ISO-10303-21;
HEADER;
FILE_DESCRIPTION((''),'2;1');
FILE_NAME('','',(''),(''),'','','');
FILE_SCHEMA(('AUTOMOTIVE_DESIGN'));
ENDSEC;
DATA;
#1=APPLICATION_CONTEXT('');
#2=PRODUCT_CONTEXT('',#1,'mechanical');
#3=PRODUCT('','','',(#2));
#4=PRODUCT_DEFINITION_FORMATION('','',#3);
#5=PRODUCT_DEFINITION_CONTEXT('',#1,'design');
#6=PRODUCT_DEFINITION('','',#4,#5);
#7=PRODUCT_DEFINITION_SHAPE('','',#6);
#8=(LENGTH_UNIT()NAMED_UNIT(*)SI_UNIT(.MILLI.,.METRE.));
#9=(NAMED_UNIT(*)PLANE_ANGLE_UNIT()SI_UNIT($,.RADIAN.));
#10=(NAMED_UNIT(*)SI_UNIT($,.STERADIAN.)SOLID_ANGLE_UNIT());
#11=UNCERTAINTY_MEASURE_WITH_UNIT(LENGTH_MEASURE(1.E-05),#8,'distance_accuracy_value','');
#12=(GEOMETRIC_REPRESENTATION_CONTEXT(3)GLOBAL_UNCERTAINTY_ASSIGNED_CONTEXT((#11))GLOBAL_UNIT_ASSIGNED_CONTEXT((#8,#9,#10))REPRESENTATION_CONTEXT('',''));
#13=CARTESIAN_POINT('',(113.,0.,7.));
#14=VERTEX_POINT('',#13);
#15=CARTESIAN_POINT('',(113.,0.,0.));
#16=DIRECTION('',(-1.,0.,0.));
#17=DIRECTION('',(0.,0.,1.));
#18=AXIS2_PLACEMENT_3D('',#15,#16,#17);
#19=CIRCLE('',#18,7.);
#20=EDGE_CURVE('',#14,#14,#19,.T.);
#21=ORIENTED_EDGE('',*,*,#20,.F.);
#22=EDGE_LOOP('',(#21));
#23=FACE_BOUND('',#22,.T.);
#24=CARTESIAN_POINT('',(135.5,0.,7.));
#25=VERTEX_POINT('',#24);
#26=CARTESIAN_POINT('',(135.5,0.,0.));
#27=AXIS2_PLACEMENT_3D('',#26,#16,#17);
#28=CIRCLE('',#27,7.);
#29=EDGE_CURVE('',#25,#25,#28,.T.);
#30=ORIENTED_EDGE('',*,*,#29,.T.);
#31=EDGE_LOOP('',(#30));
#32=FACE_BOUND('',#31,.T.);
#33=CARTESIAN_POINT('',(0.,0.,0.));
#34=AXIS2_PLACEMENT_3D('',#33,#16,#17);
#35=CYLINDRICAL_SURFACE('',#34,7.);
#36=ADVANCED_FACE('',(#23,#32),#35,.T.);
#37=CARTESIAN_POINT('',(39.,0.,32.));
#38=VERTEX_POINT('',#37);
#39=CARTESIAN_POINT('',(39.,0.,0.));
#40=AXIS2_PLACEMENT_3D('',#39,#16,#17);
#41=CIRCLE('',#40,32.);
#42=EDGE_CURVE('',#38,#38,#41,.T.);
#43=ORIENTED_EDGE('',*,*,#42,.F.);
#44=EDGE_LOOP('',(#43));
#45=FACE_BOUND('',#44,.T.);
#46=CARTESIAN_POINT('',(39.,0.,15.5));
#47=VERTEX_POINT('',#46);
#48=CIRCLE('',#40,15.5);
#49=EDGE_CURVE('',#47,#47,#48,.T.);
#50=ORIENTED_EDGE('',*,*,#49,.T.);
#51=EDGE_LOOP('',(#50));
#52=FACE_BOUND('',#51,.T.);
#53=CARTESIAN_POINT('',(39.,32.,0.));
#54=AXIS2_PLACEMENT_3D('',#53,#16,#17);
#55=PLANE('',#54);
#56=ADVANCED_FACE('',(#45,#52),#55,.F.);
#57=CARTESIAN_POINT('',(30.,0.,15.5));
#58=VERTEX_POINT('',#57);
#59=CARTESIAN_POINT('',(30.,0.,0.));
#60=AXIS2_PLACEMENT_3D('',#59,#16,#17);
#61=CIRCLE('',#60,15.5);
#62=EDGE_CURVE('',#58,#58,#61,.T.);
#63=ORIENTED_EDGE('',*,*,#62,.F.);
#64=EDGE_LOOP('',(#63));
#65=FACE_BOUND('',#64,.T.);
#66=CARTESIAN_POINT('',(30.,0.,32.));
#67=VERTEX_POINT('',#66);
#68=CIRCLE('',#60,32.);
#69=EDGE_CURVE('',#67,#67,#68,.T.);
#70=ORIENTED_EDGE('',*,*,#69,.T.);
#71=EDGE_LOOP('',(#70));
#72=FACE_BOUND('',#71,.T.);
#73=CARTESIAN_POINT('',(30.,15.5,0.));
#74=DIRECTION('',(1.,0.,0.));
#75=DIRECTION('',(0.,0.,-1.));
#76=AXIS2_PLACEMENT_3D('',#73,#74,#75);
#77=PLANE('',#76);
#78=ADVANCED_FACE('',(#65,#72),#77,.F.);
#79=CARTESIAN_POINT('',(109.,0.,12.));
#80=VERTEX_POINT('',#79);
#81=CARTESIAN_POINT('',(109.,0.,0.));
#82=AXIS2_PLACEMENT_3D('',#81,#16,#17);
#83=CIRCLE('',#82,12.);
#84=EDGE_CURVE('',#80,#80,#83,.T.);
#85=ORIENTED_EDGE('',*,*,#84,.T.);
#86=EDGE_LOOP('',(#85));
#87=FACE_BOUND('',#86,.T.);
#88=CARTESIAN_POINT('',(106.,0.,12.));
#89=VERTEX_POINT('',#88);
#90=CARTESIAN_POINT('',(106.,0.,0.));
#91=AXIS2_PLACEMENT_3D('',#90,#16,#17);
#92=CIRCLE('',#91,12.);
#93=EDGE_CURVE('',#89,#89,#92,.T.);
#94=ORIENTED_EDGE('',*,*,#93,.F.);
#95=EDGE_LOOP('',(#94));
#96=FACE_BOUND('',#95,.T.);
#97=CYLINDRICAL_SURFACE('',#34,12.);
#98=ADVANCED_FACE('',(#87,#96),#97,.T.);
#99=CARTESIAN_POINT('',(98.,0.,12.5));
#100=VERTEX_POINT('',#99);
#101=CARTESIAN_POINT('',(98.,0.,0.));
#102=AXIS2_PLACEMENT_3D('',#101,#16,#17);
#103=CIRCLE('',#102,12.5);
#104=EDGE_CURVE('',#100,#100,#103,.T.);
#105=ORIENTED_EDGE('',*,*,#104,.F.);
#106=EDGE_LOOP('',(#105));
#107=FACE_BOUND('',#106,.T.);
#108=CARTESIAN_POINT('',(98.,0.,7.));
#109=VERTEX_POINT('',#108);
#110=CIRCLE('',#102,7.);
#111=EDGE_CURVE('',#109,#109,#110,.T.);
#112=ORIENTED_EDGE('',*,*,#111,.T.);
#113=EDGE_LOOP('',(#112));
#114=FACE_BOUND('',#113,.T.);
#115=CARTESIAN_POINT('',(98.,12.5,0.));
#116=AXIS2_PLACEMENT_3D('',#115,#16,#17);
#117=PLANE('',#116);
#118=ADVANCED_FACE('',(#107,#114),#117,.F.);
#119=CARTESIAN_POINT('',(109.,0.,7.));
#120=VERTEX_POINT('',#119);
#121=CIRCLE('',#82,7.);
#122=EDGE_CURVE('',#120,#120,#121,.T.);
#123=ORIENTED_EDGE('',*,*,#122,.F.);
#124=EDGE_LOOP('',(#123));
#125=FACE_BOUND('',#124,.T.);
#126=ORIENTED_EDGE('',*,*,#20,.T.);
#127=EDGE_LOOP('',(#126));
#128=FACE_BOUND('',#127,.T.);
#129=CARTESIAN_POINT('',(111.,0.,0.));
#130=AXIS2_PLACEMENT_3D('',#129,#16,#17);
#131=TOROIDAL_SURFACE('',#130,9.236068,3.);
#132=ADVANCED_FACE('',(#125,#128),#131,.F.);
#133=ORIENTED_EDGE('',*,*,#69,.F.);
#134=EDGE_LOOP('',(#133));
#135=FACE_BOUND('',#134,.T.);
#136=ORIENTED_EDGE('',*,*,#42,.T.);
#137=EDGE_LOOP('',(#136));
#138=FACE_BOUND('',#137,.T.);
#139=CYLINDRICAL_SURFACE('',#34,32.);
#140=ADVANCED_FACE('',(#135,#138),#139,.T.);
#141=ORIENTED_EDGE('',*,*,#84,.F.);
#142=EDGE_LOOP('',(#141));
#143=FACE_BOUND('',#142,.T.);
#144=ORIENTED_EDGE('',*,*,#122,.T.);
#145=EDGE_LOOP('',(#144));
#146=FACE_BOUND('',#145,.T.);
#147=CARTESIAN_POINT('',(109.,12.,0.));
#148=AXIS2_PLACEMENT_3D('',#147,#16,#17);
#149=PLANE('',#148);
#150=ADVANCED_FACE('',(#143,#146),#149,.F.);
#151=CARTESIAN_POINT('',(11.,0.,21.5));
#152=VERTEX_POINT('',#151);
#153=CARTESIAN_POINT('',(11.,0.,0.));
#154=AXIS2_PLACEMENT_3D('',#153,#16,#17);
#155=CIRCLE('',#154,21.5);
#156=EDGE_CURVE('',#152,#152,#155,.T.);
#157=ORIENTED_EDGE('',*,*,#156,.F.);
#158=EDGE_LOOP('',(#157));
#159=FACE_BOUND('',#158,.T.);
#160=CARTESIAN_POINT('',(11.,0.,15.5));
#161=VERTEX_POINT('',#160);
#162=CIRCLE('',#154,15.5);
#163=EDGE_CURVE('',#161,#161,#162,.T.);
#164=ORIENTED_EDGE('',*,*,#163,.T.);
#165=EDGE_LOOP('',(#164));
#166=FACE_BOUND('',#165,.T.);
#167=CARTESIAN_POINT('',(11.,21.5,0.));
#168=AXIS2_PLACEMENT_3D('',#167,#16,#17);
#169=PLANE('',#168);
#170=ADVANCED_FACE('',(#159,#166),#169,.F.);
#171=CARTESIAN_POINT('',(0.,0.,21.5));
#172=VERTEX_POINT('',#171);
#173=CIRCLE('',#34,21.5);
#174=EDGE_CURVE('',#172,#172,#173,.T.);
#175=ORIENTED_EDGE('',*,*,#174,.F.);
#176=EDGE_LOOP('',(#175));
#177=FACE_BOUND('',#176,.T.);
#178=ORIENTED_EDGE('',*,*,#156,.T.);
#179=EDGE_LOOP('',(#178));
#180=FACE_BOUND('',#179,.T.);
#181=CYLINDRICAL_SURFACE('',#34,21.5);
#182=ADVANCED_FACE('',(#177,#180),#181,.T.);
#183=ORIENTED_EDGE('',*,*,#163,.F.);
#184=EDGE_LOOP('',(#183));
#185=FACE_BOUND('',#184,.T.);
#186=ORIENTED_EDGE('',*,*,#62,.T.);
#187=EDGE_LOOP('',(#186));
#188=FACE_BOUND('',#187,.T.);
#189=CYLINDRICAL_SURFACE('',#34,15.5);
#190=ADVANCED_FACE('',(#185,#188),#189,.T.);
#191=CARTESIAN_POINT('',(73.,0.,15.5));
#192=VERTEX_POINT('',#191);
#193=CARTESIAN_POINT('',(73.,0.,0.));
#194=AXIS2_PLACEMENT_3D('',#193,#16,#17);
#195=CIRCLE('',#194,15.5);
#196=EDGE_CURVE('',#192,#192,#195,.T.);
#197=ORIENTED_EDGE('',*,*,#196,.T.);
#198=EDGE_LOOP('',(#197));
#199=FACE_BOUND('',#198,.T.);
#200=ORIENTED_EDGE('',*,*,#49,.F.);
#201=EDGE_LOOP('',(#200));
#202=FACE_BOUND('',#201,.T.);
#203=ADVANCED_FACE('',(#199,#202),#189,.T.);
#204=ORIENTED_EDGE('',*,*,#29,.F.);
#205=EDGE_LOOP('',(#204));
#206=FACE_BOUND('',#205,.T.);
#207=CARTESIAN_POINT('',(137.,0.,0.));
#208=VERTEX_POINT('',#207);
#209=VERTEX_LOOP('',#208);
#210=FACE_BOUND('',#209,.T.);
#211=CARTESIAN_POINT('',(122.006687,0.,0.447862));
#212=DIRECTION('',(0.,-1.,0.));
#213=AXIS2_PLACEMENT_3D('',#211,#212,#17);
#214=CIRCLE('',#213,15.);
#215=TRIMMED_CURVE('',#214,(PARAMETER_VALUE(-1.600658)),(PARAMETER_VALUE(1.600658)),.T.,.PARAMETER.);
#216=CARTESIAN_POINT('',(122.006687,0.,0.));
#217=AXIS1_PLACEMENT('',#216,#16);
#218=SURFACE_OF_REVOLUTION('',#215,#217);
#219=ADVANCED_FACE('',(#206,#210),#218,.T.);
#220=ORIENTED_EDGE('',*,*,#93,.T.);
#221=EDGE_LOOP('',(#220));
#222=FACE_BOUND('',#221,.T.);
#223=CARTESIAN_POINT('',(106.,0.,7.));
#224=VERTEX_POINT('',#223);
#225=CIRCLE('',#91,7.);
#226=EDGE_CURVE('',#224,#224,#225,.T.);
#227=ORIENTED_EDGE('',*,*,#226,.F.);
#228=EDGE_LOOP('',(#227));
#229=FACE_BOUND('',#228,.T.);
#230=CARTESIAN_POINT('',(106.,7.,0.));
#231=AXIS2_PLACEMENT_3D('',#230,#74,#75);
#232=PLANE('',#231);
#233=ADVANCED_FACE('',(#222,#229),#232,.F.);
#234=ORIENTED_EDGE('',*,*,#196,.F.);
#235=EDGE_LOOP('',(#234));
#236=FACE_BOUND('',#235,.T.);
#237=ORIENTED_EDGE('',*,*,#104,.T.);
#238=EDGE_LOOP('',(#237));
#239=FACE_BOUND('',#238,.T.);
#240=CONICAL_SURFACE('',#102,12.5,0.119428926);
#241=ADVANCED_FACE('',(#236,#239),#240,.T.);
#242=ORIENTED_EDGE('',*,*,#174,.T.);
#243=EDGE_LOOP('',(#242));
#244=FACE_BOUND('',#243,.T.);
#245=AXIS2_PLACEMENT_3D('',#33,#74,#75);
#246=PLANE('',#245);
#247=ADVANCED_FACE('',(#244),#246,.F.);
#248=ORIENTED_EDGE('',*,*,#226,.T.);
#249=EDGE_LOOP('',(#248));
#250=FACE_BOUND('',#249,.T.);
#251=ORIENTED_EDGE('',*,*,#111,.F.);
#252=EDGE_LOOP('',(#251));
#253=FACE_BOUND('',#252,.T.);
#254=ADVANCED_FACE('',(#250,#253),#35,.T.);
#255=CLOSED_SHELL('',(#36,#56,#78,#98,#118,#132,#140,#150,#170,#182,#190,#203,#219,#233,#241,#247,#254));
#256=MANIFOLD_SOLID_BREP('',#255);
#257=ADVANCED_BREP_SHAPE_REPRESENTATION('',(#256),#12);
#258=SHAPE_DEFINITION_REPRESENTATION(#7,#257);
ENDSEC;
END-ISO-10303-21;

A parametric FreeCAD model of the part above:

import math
import FreeCAD as App
import Part
import Sketcher
from FreeCAD import Vector

doc = App.newDocument("Part")
body = doc.addObject("PartDesign::Body", "Body")

# Sketch on XY plane
sketch1 = body.newObject("Sketcher::SketchObject", "Sketch")
sketch1.AttachmentSupport = (doc.getObject("XY_Plane"), [""])
sketch1.MapMode = "FlatFace"
sketch1.addGeometry(Part.LineSegment(Vector(0, 21.5, 0), Vector(0, 0, 0)), False)
sketch1.addGeometry(Part.LineSegment(Vector(0, 0, 0), Vector(137, 0, 0)), False)
sketch1.addGeometry(Part.ArcOfCircle(Part.Circle(Vector(122, 0.4, 0), Vector(0, 0, 1), 15), math.radians(-2), math.radians(26)), False)
sketch1.addGeometry(Part.LineSegment(Vector(135.5, 7, 0), Vector(113, 7, 0)), False)
sketch1.addGeometry(Part.ArcOfCircle(Part.Circle(Vector(111, 9.2, 0), Vector(0, 0, 1), 3), math.radians(-132), math.radians(-48)), False)
sketch1.addGeometry(Part.LineSegment(Vector(109, 7, 0), Vector(109, 12, 0)), False)
sketch1.addGeometry(Part.LineSegment(Vector(109, 12, 0), Vector(106, 12, 0)), False)
sketch1.addGeometry(Part.LineSegment(Vector(106, 12, 0), Vector(106, 7, 0)), False)
sketch1.addGeometry(Part.LineSegment(Vector(106, 7, 0), Vector(98, 7, 0)), False)
sketch1.addGeometry(Part.LineSegment(Vector(98, 7, 0), Vector(98, 12.5, 0)), False)
sketch1.addGeometry(Part.LineSegment(Vector(98, 12.5, 0), Vector(73, 15.5, 0)), False)
sketch1.addGeometry(Part.LineSegment(Vector(73, 15.5, 0), Vector(39, 15.5, 0)), False)
sketch1.addGeometry(Part.LineSegment(Vector(39, 15.5, 0), Vector(39, 32, 0)), False)
sketch1.addGeometry(Part.LineSegment(Vector(39, 32, 0), Vector(30, 32, 0)), False)
sketch1.addGeometry(Part.LineSegment(Vector(30, 32, 0), Vector(30, 15.5, 0)), False)
sketch1.addGeometry(Part.LineSegment(Vector(30, 15.5, 0), Vector(11, 15.5, 0)), False)
sketch1.addGeometry(Part.LineSegment(Vector(11, 15.5, 0), Vector(11, 21.5, 0)), False)
sketch1.addGeometry(Part.LineSegment(Vector(11, 21.5, 0), Vector(0, 21.5, 0)), False)
sketch1.addConstraint(Sketcher.Constraint("Coincident", 0, 2, 1, 1))
sketch1.addConstraint(Sketcher.Constraint("Coincident", 1, 2, 2, 1))
sketch1.addConstraint(Sketcher.Constraint("Coincident", 2, 2, 3, 1))
sketch1.addConstraint(Sketcher.Constraint("Coincident", 3, 2, 4, 2))
sketch1.addConstraint(Sketcher.Constraint("Coincident", 4, 1, 5, 1))
sketch1.addConstraint(Sketcher.Constraint("Coincident", 5, 2, 6, 1))
sketch1.addConstraint(Sketcher.Constraint("Coincident", 6, 2, 7, 1))
sketch1.addConstraint(Sketcher.Constraint("Coincident", 7, 2, 8, 1))
sketch1.addConstraint(Sketcher.Constraint("Coincident", 8, 2, 9, 1))
sketch1.addConstraint(Sketcher.Constraint("Coincident", 9, 2, 10, 1))
sketch1.addConstraint(Sketcher.Constraint("Coincident", 10, 2, 11, 1))
sketch1.addConstraint(Sketcher.Constraint("Coincident", 11, 2, 12, 1))
sketch1.addConstraint(Sketcher.Constraint("Coincident", 12, 2, 13, 1))
sketch1.addConstraint(Sketcher.Constraint("Coincident", 13, 2, 14, 1))
sketch1.addConstraint(Sketcher.Constraint("Coincident", 14, 2, 15, 1))
sketch1.addConstraint(Sketcher.Constraint("Coincident", 15, 2, 16, 1))
sketch1.addConstraint(Sketcher.Constraint("Coincident", 16, 2, 17, 1))
sketch1.addConstraint(Sketcher.Constraint("Coincident", 17, 2, 0, 1))
sketch1.addConstraint(Sketcher.Constraint("Vertical", 0))
sketch1.addConstraint(Sketcher.Constraint("Horizontal", 1))
sketch1.addConstraint(Sketcher.Constraint("Horizontal", 3))
sketch1.addConstraint(Sketcher.Constraint("Vertical", 5))
sketch1.addConstraint(Sketcher.Constraint("Horizontal", 6))
sketch1.addConstraint(Sketcher.Constraint("Vertical", 7))
sketch1.addConstraint(Sketcher.Constraint("Horizontal", 8))
sketch1.addConstraint(Sketcher.Constraint("Vertical", 9))
sketch1.addConstraint(Sketcher.Constraint("Horizontal", 11))
sketch1.addConstraint(Sketcher.Constraint("Vertical", 12))
sketch1.addConstraint(Sketcher.Constraint("Horizontal", 13))
sketch1.addConstraint(Sketcher.Constraint("Vertical", 14))
sketch1.addConstraint(Sketcher.Constraint("Horizontal", 15))
sketch1.addConstraint(Sketcher.Constraint("Vertical", 16))
sketch1.addConstraint(Sketcher.Constraint("Horizontal", 17))
sketch1.addConstraint(Sketcher.Constraint("Coincident", 0, 2, -1, 1))
sketch1.addConstraint(Sketcher.Constraint("Horizontal", 3, 2, 4, 1))
sketch1.addConstraint(Sketcher.Constraint("Horizontal", 4, 1, 7, 2))
sketch1.addConstraint(Sketcher.Constraint("Horizontal", 11, 2, 14, 2))
sketch1.addConstraint(Sketcher.Constraint("Radius", 2, 15.0))
sketch1.addConstraint(Sketcher.Constraint("Radius", 4, 3.0))
sketch1.addConstraint(Sketcher.Constraint("DistanceX", 1, 1, 1, 2, 137.0))
sketch1.addConstraint(Sketcher.Constraint("DistanceX", 6, 2, 6, 1, 3.0))
sketch1.addConstraint(Sketcher.Constraint("DistanceX", 8, 2, 8, 1, 8.0))
sketch1.addConstraint(Sketcher.Constraint("DistanceX", 11, 2, 11, 1, 34.0))
sketch1.addConstraint(Sketcher.Constraint("DistanceX", 13, 2, 13, 1, 9.0))
sketch1.addConstraint(Sketcher.Constraint("DistanceX", 15, 2, 15, 1, 19.0))
sketch1.addConstraint(Sketcher.Constraint("DistanceX", 17, 2, 17, 1, 11.0))
sketch1.addConstraint(Sketcher.Constraint("DistanceY", 5, 1, 5, 2, 5.0))
sketch1.addConstraint(Sketcher.Constraint("DistanceY", 16, 1, 16, 2, 6.0))
sketch1.addConstraint(Sketcher.Constraint("DistanceX", 3, 2, 3, 1, 22.5))
sketch1.addConstraint(Sketcher.Constraint("DistanceY", 0, 2, 0, 1, 21.5))
sketch1.addConstraint(Sketcher.Constraint("DistanceY", 9, 1, 9, 2, 5.5))
sketch1.addConstraint(Sketcher.Constraint("DistanceY", 12, 1, 12, 2, 16.5))
sketch1.addConstraint(Sketcher.Constraint("DistanceX", -1, 1, 4, 3, 111.0))
sketch1.addConstraint(Sketcher.Constraint("DistanceY", -1, 1, 2, 2, 7.0))
sketch1.addConstraint(Sketcher.Constraint("DistanceX", -1, 1, 3, 2, 113.0))
revolution = body.newObject("PartDesign::Revolution", "Revolution")
revolution.Profile = sketch1
revolution.ReferenceAxis = (sketch1, ["H_Axis"])
revolution.Angle = 360

doc.recompute()
